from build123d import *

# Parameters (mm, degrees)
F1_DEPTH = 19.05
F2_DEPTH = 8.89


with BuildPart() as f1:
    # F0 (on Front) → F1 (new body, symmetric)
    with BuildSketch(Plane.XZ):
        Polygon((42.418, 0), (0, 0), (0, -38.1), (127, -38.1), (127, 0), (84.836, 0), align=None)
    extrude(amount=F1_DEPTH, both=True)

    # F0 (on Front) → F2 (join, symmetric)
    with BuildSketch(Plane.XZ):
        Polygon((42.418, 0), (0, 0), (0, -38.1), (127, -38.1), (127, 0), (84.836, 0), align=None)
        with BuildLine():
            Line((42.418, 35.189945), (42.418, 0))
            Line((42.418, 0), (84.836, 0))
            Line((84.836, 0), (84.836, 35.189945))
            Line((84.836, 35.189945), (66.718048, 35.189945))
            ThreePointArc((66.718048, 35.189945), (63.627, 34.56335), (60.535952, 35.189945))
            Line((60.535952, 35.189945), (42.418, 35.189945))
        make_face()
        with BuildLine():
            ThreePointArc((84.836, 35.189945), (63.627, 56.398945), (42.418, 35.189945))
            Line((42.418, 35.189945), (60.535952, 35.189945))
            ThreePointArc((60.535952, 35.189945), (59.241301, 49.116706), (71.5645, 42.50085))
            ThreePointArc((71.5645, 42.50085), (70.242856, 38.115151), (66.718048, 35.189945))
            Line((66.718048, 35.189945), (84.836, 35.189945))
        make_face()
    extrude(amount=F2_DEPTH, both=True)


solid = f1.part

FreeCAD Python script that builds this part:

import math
import FreeCAD as App
import Part
import Sketcher
Q = App.Units.Quantity

doc = App.newDocument("Part")
params = doc.addObject("Spreadsheet::Sheet", "Params")
for row, (alias, value) in enumerate([
    ("sketch1_width", "5 in"),
    ("sketch1_height", "1.5 in"),
    ("pad1_length", "1.5 in"),
    ("sketch2_width", "5 in"),
    ("sketch2_height", "1.5 in"),
    ("sketch2_radius", "0.835 in"),
    ("sketch2_radius2", "0.3125001 in"),
    ("sketch2_width2", "1.66 in"),
    ("pad2_length", "0.7 in"),
], start=1):
    params.set(f"A{row}", alias)
    params.set(f"B{row}", "=" + value)
    params.setAlias(f"B{row}", alias)

body = doc.addObject("PartDesign::Body", "Body")

# Sketch on XZ plane
sketch1 = body.newObject("Sketcher::SketchObject", "Sketch")
sketch1.AttachmentSupport = (doc.getObject("XZ_Plane"), [""])
sketch1.MapMode = "FlatFace"
sketch1.addGeometry([
    Part.LineSegment(App.Vector(0, 0, 0), App.Vector(0, -38, 0)),
    Part.LineSegment(App.Vector(0, -38, 0), App.Vector(127, -38, 0)),
    Part.LineSegment(App.Vector(127, -38, 0), App.Vector(127, 0, 0)),
    Part.LineSegment(App.Vector(127, 0, 0), App.Vector(0, 0, 0)),
], False)
sketch1.addConstraint([
    Sketcher.Constraint("Coincident", 0, 2, 1, 1),
    Sketcher.Constraint("Coincident", 1, 2, 2, 1),
    Sketcher.Constraint("Coincident", 2, 2, 3, 1),
    Sketcher.Constraint("Coincident", 3, 2, 0, 1),
    Sketcher.Constraint("Vertical", 0),
    Sketcher.Constraint("Horizontal", 1),
    Sketcher.Constraint("Vertical", 2),
    Sketcher.Constraint("Horizontal", 3),
    Sketcher.Constraint("Coincident", 3, 2, -1, 1),
    Sketcher.Constraint("DistanceX", 1, 1, 1, 2, Q("5 in")),
    Sketcher.Constraint("DistanceY", 0, 2, 0, 1, Q("1.5 in")),
])
sketch1.setExpression("Constraints[9]", "Params.sketch1_width")
sketch1.setExpression("Constraints[10]", "Params.sketch1_height")
pad1 = body.newObject("PartDesign::Pad", "Pad")
pad1.Profile = sketch1
pad1.setExpression("Length", "Params.pad1_length")
pad1.Midplane = True

# Sketch on XZ plane
sketch2 = body.newObject("Sketcher::SketchObject", "Sketch001")
sketch2.AttachmentSupport = (doc.getObject("XZ_Plane"), [""])
sketch2.MapMode = "FlatFace"
sketch2.addGeometry([
    Part.LineSegment(App.Vector(0, 0, 0), App.Vector(0, -38, 0)),  # 0
    Part.LineSegment(App.Vector(0, -38, 0), App.Vector(127, -38, 0)),  # 1
    Part.LineSegment(App.Vector(127, -38, 0), App.Vector(127, 0, 0)),  # 2
    Part.LineSegment(App.Vector(127, 0, 0), App.Vector(85, 0, 0)),  # 3
    Part.LineSegment(App.Vector(85, 0, 0), App.Vector(85, 35, 0)),  # 4
    Part.ArcOfCircle(Part.Circle(App.Vector(64, 35, 0), App.Vector(0, 0, 1), 21), math.radians(0), math.radians(180)),  # 5
    Part.LineSegment(App.Vector(42, 35, 0), App.Vector(42, 0, 0)),  # 6
    Part.LineSegment(App.Vector(42, 0, 0), App.Vector(0, 0, 0)),  # 7
    Part.ArcOfCircle(Part.Circle(App.Vector(64, 43, 0), App.Vector(0, 0, 1), 8), math.radians(-113), math.radians(-67)),  # 8
    Part.ArcOfCircle(Part.Circle(App.Vector(64, 43, 0), App.Vector(0, 0, 1), 8), math.radians(0), math.radians(247)),  # 9
    Part.ArcOfCircle(Part.Circle(App.Vector(64, 43, 0), App.Vector(0, 0, 1), 8), math.radians(-67), math.radians(0)),  # 10
], False)
sketch2.addConstraint([
    Sketcher.Constraint("Coincident", 0, 2, 1, 1),
    Sketcher.Constraint("Coincident", 1, 2, 2, 1),
    Sketcher.Constraint("Coincident", 2, 2, 3, 1),
    Sketcher.Constraint("Coincident", 3, 2, 4, 1),
    Sketcher.Constraint("Tangent", 4, 2, 5, 1),
    Sketcher.Constraint("Tangent", 5, 2, 6, 1),
    Sketcher.Constraint("Coincident", 6, 2, 7, 1),
    Sketcher.Constraint("Coincident", 7, 2, 0, 1),
    Sketcher.Constraint("Tangent", 8, 1, 9, 2),
    Sketcher.Constraint("Tangent", 9, 1, 10, 2),
    Sketcher.Constraint("Tangent", 10, 1, 8, 2),
    Sketcher.Constraint("Vertical", 0),
    Sketcher.Constraint("Horizontal", 1),
    Sketcher.Constraint("Vertical", 2),
    Sketcher.Constraint("Horizontal", 3),
    Sketcher.Constraint("Vertical", 4),
    Sketcher.Constraint("Vertical", 6),
    Sketcher.Constraint("Horizontal", 7),
    Sketcher.Constraint("Coincident", 7, 2, -1, 1),
    Sketcher.Constraint("PointOnObject", 2, 2, -1),
    Sketcher.Constraint("Horizontal", 5, 2, 8, 1),
    Sketcher.Constraint("Horizontal", 10, 3, 9, 1),
    Sketcher.Constraint("Horizontal", 8, 1, 10, 1),
    Sketcher.Constraint("Vertical", 5, 3, 8, 3),
    Sketcher.Constraint("DistanceX", 1, 1, 1, 2, Q("5 in")),
    Sketcher.Constraint("DistanceY", 0, 2, 0, 1, Q("1.5 in")),
    Sketcher.Constraint("Radius", 5, Q("0.835 in")),
    Sketcher.Constraint("Radius", 8, Q("0.3125001 in")),
    Sketcher.Constraint("DistanceX", 3, 2, 3, 1, Q("1.66 in")),
    Sketcher.Constraint("DistanceY", 4, 1, 4, 2, Q("35.189945 mm")),
    Sketcher.Constraint("DistanceY", -1, 1, 9, 3, Q("42.50085 mm")),
])
sketch2.setExpression("Constraints[24]", "Params.sketch2_width")
sketch2.setExpression("Constraints[25]", "Params.sketch2_height")
sketch2.setExpression("Constraints[26]", "Params.sketch2_radius")
sketch2.setExpression("Constraints[27]", "Params.sketch2_radius2")
sketch2.setExpression("Constraints[28]", "Params.sketch2_width2")
pad2 = body.newObject("PartDesign::Pad", "Pad001")
pad2.Profile = sketch2
pad2.setExpression("Length", "Params.pad2_length")
pad2.Midplane = True

doc.recompute()
